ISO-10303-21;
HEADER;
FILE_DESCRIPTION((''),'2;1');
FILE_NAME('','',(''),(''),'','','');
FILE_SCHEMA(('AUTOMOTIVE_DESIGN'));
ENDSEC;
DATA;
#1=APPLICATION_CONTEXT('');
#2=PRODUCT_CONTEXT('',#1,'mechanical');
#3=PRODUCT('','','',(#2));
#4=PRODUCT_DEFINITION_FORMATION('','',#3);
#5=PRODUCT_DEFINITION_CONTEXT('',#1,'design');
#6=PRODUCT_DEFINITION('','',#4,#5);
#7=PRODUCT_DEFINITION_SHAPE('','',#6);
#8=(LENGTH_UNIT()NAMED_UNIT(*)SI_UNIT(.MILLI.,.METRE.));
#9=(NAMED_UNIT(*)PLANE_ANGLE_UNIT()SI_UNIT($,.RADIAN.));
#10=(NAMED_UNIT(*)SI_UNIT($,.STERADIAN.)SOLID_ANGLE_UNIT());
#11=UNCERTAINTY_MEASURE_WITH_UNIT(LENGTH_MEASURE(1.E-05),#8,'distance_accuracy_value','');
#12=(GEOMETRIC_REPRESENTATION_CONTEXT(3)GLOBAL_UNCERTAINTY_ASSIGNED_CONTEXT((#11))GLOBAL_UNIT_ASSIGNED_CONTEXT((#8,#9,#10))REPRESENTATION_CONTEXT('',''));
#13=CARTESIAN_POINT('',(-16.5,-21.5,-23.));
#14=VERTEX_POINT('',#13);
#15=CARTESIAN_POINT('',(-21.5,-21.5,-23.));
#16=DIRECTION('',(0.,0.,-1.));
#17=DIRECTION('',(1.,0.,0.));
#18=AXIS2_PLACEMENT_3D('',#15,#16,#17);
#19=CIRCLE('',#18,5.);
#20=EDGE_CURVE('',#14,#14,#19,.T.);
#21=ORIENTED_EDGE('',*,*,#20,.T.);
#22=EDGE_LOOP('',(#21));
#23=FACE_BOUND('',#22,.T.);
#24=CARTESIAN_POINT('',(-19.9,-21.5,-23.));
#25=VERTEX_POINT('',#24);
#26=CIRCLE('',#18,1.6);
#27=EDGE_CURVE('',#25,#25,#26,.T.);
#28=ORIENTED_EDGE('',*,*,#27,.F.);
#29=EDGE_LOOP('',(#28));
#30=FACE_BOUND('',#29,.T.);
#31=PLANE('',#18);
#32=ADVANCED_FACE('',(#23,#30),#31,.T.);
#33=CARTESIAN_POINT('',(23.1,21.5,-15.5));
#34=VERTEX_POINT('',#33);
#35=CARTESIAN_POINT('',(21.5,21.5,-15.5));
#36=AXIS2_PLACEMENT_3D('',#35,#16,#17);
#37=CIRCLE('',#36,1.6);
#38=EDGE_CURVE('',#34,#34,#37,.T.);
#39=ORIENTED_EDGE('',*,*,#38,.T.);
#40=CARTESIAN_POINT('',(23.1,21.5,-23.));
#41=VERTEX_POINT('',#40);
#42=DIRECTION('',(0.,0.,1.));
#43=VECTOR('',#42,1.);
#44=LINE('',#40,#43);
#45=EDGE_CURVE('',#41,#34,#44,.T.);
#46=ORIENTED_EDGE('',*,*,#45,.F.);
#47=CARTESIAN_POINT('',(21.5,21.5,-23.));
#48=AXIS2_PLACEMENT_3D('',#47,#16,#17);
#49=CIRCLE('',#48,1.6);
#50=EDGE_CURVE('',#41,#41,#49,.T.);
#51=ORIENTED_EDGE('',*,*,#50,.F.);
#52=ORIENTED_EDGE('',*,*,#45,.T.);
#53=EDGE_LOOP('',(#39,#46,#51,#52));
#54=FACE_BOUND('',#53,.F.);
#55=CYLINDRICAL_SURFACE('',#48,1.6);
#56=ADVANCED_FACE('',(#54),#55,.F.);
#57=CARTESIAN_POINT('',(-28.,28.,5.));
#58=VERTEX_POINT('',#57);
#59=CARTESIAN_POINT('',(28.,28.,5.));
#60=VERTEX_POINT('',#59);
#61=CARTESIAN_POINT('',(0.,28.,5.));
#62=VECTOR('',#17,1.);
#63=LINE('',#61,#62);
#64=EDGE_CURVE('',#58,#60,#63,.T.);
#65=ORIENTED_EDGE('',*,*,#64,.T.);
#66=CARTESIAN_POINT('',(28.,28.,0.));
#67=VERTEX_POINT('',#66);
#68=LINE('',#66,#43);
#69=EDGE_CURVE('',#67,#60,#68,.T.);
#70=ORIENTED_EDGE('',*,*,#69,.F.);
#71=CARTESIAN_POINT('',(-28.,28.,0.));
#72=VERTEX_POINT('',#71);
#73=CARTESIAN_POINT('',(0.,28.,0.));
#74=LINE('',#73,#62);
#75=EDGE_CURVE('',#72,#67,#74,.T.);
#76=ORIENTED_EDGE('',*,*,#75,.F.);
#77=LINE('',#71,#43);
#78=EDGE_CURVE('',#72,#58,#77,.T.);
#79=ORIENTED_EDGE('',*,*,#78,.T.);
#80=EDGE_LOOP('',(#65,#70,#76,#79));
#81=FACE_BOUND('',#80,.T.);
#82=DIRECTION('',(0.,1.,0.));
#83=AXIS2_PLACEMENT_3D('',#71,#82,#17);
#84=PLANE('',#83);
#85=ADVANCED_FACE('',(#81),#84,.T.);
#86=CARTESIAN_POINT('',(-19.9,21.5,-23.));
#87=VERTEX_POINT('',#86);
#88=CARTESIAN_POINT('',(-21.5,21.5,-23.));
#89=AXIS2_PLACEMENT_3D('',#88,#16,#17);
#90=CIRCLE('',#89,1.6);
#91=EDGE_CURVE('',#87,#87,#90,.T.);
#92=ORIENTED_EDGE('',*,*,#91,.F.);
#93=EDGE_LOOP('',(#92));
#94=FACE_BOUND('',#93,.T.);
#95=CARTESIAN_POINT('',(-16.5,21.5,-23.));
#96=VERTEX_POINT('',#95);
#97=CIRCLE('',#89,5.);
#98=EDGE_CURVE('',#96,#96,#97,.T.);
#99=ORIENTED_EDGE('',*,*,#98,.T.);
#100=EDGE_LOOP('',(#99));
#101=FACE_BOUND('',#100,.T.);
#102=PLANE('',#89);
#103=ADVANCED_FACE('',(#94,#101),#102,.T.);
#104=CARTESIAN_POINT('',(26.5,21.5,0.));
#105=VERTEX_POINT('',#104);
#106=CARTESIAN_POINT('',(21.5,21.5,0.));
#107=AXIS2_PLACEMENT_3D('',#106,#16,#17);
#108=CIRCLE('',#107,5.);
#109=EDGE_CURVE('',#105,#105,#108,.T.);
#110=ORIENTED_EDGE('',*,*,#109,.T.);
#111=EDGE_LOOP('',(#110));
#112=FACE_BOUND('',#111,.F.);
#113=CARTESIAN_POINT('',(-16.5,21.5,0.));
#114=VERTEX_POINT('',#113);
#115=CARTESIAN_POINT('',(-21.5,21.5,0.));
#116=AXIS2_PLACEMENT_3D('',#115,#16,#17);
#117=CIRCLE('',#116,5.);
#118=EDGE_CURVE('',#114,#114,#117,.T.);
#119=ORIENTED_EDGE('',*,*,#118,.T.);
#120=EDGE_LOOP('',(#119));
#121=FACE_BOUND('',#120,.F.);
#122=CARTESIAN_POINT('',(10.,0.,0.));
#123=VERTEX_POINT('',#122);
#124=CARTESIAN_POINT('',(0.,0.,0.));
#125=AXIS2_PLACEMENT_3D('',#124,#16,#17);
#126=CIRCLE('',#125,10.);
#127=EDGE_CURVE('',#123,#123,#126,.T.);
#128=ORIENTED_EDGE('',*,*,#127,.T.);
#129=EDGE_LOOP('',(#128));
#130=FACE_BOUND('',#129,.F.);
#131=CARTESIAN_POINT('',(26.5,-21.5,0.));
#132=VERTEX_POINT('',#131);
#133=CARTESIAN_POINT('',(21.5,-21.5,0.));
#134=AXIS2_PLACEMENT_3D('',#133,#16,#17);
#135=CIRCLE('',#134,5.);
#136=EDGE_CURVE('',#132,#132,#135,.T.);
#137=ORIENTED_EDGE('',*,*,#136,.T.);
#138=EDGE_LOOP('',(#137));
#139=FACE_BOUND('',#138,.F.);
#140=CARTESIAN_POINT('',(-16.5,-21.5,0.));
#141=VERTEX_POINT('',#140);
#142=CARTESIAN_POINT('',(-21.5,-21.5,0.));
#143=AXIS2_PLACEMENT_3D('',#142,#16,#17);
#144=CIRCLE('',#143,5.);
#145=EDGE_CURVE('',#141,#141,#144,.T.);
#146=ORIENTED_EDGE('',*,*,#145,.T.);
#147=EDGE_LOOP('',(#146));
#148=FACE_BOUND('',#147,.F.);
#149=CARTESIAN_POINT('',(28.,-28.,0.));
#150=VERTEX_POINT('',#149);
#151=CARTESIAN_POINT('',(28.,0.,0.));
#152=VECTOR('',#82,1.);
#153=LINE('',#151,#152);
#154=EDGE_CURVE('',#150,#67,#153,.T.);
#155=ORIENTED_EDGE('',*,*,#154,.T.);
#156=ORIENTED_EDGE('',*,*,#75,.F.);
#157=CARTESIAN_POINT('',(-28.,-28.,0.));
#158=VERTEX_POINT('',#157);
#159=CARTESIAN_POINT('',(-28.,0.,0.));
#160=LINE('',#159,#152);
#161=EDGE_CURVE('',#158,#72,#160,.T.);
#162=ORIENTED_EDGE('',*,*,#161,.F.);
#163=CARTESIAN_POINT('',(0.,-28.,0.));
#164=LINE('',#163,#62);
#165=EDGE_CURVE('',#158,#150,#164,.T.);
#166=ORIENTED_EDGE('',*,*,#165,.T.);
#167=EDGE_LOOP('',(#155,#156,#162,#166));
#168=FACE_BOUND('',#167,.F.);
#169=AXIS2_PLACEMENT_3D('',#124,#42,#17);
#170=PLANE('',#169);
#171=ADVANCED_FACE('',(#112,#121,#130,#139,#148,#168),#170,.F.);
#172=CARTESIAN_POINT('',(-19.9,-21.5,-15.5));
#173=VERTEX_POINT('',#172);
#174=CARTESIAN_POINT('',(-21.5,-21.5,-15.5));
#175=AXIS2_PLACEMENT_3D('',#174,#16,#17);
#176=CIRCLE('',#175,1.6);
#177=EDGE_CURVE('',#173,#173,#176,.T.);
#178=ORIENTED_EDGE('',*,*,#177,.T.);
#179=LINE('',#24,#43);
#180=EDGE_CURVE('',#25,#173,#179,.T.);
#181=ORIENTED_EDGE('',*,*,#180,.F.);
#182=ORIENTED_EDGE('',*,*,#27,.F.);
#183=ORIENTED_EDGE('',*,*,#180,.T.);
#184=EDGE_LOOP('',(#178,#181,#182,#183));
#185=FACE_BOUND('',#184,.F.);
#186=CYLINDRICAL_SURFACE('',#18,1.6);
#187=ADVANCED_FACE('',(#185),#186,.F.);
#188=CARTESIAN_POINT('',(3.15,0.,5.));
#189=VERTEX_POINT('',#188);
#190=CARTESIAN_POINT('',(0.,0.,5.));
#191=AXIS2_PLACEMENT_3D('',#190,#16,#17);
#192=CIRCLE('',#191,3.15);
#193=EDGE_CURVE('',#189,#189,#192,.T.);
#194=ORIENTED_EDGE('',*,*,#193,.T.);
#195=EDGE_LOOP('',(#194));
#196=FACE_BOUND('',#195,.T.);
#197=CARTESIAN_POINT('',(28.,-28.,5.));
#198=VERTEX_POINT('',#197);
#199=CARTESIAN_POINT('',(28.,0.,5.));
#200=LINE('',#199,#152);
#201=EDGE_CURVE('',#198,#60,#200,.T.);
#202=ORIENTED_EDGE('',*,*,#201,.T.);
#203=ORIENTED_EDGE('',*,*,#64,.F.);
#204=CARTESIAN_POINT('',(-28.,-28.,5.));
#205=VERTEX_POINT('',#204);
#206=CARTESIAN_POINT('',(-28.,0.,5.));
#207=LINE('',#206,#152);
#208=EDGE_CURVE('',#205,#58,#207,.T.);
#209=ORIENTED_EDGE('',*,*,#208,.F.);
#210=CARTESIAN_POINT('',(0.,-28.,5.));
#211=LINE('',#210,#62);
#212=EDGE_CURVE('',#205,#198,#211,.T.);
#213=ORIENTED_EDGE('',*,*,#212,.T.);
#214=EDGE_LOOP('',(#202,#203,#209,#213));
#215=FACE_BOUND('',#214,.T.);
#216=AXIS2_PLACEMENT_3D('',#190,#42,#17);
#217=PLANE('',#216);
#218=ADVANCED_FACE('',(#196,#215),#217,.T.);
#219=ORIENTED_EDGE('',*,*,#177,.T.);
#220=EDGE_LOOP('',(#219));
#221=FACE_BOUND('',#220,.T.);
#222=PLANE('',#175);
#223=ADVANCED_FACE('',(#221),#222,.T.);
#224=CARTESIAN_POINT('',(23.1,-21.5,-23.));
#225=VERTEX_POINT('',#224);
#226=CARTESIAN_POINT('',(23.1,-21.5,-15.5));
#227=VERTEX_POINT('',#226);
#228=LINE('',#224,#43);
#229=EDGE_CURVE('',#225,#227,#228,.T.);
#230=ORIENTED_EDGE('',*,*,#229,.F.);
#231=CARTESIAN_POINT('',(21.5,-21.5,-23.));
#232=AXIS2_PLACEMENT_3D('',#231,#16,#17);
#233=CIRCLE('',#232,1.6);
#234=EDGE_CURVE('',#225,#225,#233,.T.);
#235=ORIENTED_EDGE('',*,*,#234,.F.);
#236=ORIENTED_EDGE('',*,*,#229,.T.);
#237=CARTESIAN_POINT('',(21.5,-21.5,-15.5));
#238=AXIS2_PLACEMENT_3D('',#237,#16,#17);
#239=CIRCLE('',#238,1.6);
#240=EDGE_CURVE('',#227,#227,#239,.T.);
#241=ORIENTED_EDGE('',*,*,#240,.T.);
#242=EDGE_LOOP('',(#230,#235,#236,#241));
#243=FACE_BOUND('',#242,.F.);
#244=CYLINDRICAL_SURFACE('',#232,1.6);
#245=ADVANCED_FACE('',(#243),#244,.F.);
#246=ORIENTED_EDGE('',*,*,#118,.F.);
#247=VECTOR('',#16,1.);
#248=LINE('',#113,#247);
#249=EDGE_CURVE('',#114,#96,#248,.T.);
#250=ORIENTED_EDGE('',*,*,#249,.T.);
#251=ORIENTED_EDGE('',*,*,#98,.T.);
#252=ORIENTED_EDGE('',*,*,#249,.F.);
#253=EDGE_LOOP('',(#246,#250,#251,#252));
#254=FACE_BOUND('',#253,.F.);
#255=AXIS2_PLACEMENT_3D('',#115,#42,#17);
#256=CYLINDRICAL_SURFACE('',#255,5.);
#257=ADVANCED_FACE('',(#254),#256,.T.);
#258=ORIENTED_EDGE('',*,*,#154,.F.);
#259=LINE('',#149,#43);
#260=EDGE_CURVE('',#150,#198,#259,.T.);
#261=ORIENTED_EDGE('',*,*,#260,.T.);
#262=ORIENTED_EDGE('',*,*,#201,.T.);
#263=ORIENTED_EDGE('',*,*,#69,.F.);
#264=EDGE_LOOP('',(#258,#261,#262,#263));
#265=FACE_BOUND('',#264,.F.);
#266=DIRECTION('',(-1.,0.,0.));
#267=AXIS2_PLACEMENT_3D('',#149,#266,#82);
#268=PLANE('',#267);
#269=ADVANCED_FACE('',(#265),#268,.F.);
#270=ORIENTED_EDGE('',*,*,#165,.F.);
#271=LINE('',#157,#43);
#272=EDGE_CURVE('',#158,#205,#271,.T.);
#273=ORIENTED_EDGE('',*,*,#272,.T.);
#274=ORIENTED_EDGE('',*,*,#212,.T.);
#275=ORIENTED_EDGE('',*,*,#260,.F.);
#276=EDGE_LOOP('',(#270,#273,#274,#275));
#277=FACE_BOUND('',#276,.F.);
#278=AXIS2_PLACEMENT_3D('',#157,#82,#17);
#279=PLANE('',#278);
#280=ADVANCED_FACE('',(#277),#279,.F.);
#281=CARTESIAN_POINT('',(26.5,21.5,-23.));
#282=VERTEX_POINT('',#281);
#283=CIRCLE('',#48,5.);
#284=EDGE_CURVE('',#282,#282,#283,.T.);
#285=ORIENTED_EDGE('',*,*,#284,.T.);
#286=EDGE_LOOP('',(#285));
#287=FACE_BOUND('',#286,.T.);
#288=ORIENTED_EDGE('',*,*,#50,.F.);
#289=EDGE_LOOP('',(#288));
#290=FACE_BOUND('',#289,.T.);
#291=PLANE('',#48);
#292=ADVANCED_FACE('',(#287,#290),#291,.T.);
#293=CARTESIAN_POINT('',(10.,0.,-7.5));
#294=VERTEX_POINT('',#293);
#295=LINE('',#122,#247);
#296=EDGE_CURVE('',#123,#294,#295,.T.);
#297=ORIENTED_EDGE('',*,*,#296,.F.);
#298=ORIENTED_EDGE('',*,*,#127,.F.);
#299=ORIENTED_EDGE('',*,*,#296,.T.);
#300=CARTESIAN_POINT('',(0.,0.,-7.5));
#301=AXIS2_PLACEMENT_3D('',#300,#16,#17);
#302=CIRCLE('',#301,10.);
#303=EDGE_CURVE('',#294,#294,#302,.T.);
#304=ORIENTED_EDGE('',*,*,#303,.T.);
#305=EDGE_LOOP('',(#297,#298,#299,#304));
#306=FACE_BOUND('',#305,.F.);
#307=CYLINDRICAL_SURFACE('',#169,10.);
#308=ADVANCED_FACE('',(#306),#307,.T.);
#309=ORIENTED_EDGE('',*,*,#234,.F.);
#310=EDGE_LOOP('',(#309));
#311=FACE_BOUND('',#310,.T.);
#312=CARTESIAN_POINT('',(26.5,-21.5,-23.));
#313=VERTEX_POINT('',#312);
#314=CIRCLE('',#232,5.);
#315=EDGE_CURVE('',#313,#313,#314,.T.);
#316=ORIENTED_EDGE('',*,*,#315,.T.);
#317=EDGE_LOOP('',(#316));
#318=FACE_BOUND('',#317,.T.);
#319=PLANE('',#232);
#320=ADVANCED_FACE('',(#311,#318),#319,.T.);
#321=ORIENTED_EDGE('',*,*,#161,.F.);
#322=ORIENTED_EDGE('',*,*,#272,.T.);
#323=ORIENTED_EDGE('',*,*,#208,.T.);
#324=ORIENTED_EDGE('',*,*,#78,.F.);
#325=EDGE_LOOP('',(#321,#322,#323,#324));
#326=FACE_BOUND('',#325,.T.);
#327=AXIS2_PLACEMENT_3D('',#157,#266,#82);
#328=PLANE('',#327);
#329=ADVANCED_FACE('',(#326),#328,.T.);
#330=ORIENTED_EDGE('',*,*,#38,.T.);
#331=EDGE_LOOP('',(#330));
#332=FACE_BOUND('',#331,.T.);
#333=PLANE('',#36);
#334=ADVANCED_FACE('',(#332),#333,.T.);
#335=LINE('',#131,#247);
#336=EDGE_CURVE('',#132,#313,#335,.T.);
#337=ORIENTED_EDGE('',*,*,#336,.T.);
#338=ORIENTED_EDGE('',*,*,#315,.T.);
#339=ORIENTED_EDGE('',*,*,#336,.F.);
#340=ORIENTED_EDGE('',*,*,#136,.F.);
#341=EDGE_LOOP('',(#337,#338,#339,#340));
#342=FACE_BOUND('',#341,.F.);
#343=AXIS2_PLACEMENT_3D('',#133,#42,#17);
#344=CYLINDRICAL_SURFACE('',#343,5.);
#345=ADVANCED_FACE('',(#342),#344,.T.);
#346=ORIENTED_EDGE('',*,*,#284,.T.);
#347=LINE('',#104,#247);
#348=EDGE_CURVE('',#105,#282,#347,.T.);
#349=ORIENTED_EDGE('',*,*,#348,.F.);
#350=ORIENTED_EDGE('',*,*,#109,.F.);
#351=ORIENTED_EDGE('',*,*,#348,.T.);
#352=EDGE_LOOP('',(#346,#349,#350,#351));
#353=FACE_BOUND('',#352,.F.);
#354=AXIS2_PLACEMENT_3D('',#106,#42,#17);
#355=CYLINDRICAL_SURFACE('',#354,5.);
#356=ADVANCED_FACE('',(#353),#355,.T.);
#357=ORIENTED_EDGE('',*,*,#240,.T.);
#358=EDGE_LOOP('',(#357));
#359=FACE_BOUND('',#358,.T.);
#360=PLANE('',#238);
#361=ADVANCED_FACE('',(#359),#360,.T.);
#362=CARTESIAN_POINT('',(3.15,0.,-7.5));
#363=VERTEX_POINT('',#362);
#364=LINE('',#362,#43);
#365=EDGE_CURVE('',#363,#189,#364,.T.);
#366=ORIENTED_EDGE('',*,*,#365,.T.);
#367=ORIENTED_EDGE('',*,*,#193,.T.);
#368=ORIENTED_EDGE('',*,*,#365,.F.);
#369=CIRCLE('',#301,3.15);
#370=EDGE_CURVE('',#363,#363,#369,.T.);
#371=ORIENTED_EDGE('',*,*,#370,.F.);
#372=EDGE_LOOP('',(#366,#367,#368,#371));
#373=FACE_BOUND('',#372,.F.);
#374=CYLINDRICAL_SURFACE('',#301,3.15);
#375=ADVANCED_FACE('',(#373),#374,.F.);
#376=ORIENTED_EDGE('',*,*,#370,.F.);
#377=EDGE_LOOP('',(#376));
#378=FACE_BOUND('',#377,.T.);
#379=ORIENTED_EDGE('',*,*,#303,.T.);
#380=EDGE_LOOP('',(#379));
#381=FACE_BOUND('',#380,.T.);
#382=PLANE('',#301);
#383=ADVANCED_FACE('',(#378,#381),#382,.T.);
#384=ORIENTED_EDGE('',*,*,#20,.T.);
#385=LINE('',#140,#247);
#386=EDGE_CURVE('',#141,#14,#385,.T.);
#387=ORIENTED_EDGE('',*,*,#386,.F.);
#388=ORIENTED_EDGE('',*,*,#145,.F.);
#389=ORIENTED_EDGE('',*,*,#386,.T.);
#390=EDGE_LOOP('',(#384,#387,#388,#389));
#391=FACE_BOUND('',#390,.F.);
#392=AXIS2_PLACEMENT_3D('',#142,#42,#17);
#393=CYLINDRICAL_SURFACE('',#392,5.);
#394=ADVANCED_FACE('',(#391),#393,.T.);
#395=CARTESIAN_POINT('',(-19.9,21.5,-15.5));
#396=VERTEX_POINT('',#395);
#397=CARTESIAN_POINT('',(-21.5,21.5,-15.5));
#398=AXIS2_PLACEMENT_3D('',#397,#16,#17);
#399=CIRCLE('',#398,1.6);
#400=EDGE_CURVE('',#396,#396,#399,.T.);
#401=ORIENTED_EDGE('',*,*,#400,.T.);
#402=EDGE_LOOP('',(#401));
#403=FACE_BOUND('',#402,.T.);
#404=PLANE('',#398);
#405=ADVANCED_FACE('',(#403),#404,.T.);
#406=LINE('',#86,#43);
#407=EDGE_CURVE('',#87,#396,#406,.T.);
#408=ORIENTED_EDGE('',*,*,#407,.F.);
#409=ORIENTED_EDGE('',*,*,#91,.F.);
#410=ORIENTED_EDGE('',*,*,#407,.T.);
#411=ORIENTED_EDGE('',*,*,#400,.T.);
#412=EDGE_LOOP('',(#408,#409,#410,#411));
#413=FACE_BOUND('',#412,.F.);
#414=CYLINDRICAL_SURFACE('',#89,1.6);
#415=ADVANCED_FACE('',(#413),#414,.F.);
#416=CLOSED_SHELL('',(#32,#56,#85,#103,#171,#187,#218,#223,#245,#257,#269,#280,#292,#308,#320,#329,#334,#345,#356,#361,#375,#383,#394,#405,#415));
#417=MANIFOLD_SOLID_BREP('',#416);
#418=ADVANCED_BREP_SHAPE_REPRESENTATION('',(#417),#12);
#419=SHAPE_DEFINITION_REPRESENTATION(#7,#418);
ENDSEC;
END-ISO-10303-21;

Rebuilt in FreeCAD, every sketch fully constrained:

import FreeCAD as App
import Part
import Sketcher

doc = App.newDocument("Part")
body = doc.addObject("PartDesign::Body", "Body")

# Sketch on XY plane
sketch1 = doc.addObject("Sketcher::SketchObject", "Sketch")
body.addObject(sketch1)
sketch1.AttachmentSupport = (doc.XY_Plane, [""])
sketch1.MapMode = "FlatFace"
sketch1.addGeometry([
    Part.LineSegment(App.Vector(-28, 28, 0), App.Vector(-28, -28, 0)),
    Part.LineSegment(App.Vector(-28, -28, 0), App.Vector(28, -28, 0)),
    Part.LineSegment(App.Vector(28, -28, 0), App.Vector(28, 28, 0)),
    Part.LineSegment(App.Vector(28, 28, 0), App.Vector(-28, 28, 0)),
], False)
sketch1.addConstraint([
    Sketcher.Constraint("Coincident", 0, 2, 1, 1),
    Sketcher.Constraint("Coincident", 1, 2, 2, 1),
    Sketcher.Constraint("Coincident", 2, 2, 3, 1),
    Sketcher.Constraint("Coincident", 3, 2, 0, 1),
    Sketcher.Constraint("Vertical", 0),
    Sketcher.Constraint("Horizontal", 1),
    Sketcher.Constraint("Vertical", 2),
    Sketcher.Constraint("Horizontal", 3),
    Sketcher.Constraint("Symmetric", 0, 2, 2, 2, -1, 1),
    Sketcher.Constraint("Equal", 3, 0),
    Sketcher.Constraint("DistanceX", 1, 1, 1, 2, 56.0),
])
pad1 = doc.addObject("PartDesign::Pad", "Pad")
body.addObject(pad1)
pad1.Profile = sketch1
pad1.Length = 5

# Sketch on XY plane
sketch2 = doc.addObject("Sketcher::SketchObject", "Sketch001")
body.addObject(sketch2)
sketch2.AttachmentSupport = (doc.XY_Plane, [""])
sketch2.MapMode = "FlatFace"
sketch2.addGeometry(Part.Circle(App.Vector(0, 0, 0), App.Vector(0, 0, 1), 10), False)
sketch2.addConstraint([
    Sketcher.Constraint("Coincident", 0, 3, -1, 1),
    Sketcher.Constraint("Diameter", 0, 20.0),
])
pad2 = doc.addObject("PartDesign::Pad", "Pad001")
body.addObject(pad2)
pad2.Profile = sketch2
pad2.Length = 7.5
pad2.Reversed = True

# Sketch on XY plane
sketch3 = doc.addObject("Sketcher::SketchObject", "Sketch002")
body.addObject(sketch3)
sketch3.AttachmentSupport = (doc.XY_Plane, [""])
sketch3.MapMode = "FlatFace"
sketch3.AttachmentOffset = App.Placement(App.Vector(0, 0, -7.5), App.Rotation())
sketch3.addGeometry(Part.Circle(App.Vector(0, 0, 0), App.Vector(0, 0, 1), 3.1), False)
sketch3.addConstraint([
    Sketcher.Constraint("Coincident", 0, 3, -1, 1),
    Sketcher.Constraint("Diameter", 0, 6.3),
])
pocket1 = doc.addObject("PartDesign::Pocket", "Pocket")
body.addObject(pocket1)
pocket1.Profile = sketch3
pocket1.Type = "ThroughAll"
pocket1.Reversed = True

# Sketch on XY plane
sketch4 = doc.addObject("Sketcher::SketchObject", "Sketch003")
body.addObject(sketch4)
sketch4.AttachmentSupport = (doc.XY_Plane, [""])
sketch4.MapMode = "FlatFace"
sketch4.addGeometry([
    Part.Circle(App.Vector(-22, -22, 0), App.Vector(0, 0, 1), 5),
    Part.Circle(App.Vector(22, -22, 0), App.Vector(0, 0, 1), 5),
    Part.Circle(App.Vector(-22, 22, 0), App.Vector(0, 0, 1), 5),
    Part.Circle(App.Vector(22, 22, 0), App.Vector(0, 0, 1), 5),
], False)
sketch4.addConstraint([
    Sketcher.Constraint("Equal", 0, 1),
    Sketcher.Constraint("Equal", 1, 2),
    Sketcher.Constraint("Equal", 2, 3),
    Sketcher.Constraint("Symmetric", 1, 3, 2, 3, -1, 1),
    Sketcher.Constraint("Symmetric", 0, 3, 3, 3, -1, 1),
    Sketcher.Constraint("Symmetric", 0, 3, 1, 3, -2),
    Sketcher.Constraint("Diameter", 0, 10.0),
    Sketcher.Constraint("DistanceX", 0, 3, 1, 3, 43.0),
    Sketcher.Constraint("DistanceY", 0, 3, 2, 3, 43.0),
])
pad3 = doc.addObject("PartDesign::Pad", "Pad002")
body.addObject(pad3)
pad3.Profile = sketch4
pad3.Length = 23
pad3.Reversed = True

# Sketch on XY plane
sketch5 = doc.addObject("Sketcher::SketchObject", "Sketch004")
body.addObject(sketch5)
sketch5.AttachmentSupport = (doc.XY_Plane, [""])
sketch5.MapMode = "FlatFace"
sketch5.AttachmentOffset = App.Placement(App.Vector(0, 0, -23), App.Rotation())
sketch5.addGeometry(Part.Circle(App.Vector(-21.5, -21.5, 0), App.Vector(0, 0, 1), 1.6), False)
sketch5.addConstraint([
    Sketcher.Constraint("Diameter", 0, 3.2),
    Sketcher.Constraint("DistanceX", 0, 3, -1, 1, 21.5),
    Sketcher.Constraint("DistanceY", 0, 3, -1, 1, 21.5),
])
pocket2 = doc.addObject("PartDesign::Pocket", "Pocket001")
body.addObject(pocket2)
pocket2.Profile = sketch5
pocket2.Length = 7.5
pocket2.Reversed = True

# Sketch on XY plane
sketch6 = doc.addObject("Sketcher::SketchObject", "Sketch005")
body.addObject(sketch6)
sketch6.AttachmentSupport = (doc.XY_Plane, [""])
sketch6.MapMode = "FlatFace"
sketch6.AttachmentOffset = App.Placement(App.Vector(0, 0, -23), App.Rotation())
sketch6.addGeometry(Part.Circle(App.Vector(21.5, -21.5, 0), App.Vector(0, 0, 1), 1.6), False)
sketch6.addConstraint([
    Sketcher.Constraint("Diameter", 0, 3.2),
    Sketcher.Constraint("DistanceX", -1, 1, 0, 3, 21.5),
    Sketcher.Constraint("DistanceY", 0, 3, -1, 1, 21.5),
])
pocket3 = doc.addObject("PartDesign::Pocket", "Pocket002")
body.addObject(pocket3)
pocket3.Profile = sketch6
pocket3.Length = 7.5
pocket3.Reversed = True

# Sketch on XY plane
sketch7 = doc.addObject("Sketcher::SketchObject", "Sketch006")
body.addObject(sketch7)
sketch7.AttachmentSupport = (doc.XY_Plane, [""])
sketch7.MapMode = "FlatFace"
sketch7.AttachmentOffset = App.Placement(App.Vector(0, 0, -23), App.Rotation())
sketch7.addGeometry(Part.Circle(App.Vector(-21.5, 21.5, 0), App.Vector(0, 0, 1), 1.6), False)
sketch7.addConstraint([
    Sketcher.Constraint("Diameter", 0, 3.2),
    Sketcher.Constraint("DistanceX", 0, 3, -1, 1, 21.5),
    Sketcher.Constraint("DistanceY", -1, 1, 0, 3, 21.5),
])
pocket4 = doc.addObject("PartDesign::Pocket", "Pocket003")
body.addObject(pocket4)
pocket4.Profile = sketch7
pocket4.Length = 7.5
pocket4.Reversed = True

# Sketch on XY plane
sketch8 = doc.addObject("Sketcher::SketchObject", "Sketch007")
body.addObject(sketch8)
sketch8.AttachmentSupport = (doc.XY_Plane, [""])
sketch8.MapMode = "FlatFace"
sketch8.AttachmentOffset = App.Placement(App.Vector(0, 0, -23), App.Rotation())
sketch8.addGeometry(Part.Circle(App.Vector(21.5, 21.5, 0), App.Vector(0, 0, 1), 1.6), False)
sketch8.addConstraint([
    Sketcher.Constraint("Diameter", 0, 3.2),
    Sketcher.Constraint("DistanceX", -1, 1, 0, 3, 21.5),
    Sketcher.Constraint("DistanceY", -1, 1, 0, 3, 21.5),
])
pocket5 = doc.addObject("PartDesign::Pocket", "Pocket004")
body.addObject(pocket5)
pocket5.Profile = sketch8
pocket5.Length = 7.5
pocket5.Reversed = True

doc.recompute()
